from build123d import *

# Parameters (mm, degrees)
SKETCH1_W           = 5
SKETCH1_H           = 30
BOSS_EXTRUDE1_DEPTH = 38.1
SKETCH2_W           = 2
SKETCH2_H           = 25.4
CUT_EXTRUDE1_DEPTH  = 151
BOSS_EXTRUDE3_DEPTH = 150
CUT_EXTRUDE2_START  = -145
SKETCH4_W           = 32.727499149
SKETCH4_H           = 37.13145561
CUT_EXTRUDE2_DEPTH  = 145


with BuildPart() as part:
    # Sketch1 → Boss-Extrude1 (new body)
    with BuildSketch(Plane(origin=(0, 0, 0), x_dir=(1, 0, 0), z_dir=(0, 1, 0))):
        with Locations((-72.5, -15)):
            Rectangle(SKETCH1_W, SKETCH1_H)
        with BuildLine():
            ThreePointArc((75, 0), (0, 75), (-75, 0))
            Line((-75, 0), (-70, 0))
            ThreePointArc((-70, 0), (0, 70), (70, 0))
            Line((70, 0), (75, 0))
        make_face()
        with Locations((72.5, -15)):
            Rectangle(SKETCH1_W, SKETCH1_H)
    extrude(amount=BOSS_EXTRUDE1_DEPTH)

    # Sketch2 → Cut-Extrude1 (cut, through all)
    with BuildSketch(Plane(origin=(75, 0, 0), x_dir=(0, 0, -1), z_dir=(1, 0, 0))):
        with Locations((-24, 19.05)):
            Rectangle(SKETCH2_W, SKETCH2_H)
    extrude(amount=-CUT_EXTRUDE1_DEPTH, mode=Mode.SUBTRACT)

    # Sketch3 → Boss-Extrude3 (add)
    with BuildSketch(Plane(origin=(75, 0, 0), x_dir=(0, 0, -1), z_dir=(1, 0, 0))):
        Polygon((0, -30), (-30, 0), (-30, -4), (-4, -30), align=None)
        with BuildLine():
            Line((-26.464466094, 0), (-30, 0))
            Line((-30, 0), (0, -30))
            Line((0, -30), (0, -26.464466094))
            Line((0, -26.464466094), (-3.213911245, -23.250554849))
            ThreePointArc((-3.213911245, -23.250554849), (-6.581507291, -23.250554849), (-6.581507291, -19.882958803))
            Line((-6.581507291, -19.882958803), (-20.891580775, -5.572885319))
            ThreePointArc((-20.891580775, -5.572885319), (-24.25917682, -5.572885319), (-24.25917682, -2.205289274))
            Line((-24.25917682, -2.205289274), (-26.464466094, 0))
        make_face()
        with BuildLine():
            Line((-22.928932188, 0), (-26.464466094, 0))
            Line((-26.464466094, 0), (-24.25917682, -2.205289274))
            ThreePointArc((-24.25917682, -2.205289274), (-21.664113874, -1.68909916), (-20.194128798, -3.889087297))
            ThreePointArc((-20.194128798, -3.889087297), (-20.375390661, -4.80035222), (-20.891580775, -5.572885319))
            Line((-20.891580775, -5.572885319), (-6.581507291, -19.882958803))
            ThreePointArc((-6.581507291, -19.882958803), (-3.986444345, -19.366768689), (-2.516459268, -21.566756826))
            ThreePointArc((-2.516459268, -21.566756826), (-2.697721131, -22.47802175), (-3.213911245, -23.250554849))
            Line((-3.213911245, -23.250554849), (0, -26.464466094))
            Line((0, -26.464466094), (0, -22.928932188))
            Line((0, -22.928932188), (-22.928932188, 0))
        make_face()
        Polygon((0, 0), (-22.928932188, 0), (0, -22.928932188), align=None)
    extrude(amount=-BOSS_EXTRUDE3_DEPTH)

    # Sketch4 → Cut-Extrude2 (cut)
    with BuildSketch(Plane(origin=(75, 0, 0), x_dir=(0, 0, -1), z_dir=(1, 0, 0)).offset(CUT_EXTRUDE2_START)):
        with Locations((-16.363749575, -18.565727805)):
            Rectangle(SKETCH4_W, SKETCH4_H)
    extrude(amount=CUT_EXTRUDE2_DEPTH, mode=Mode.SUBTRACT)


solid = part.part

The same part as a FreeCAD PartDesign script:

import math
import FreeCAD as App
import Part
import Sketcher

doc = App.newDocument("Part")
body = doc.addObject("PartDesign::Body", "Body")

# Sketch on XZ plane
sketch1 = body.newObject("Sketcher::SketchObject", "Sketch")
sketch1.AttachmentSupport = (doc.getObject("XZ_Plane"), [""])
sketch1.MapMode = "FlatFace"
sketch1.addGeometry([
    Part.LineSegment(App.Vector(-75, 0, 0), App.Vector(-75, 30, 0)),  # 0
    Part.LineSegment(App.Vector(-75, 30, 0), App.Vector(-70, 30, 0)),  # 1
    Part.LineSegment(App.Vector(-70, 30, 0), App.Vector(-70, 0, 0)),  # 2
    Part.ArcOfCircle(Part.Circle(App.Vector(0, 0, 0), App.Vector(0, 0, 1), 70), math.radians(180), math.radians(360)),  # 3
    Part.LineSegment(App.Vector(70, 0, 0), App.Vector(70, 30, 0)),  # 4
    Part.LineSegment(App.Vector(70, 30, 0), App.Vector(75, 30, 0)),  # 5
    Part.LineSegment(App.Vector(75, 30, 0), App.Vector(75, 0, 0)),  # 6
    Part.ArcOfCircle(Part.Circle(App.Vector(0, 0, 0), App.Vector(0, 0, 1), 75), math.radians(180), math.radians(360)),  # 7
], False)
sketch1.addConstraint([
    Sketcher.Constraint("Coincident", 0, 2, 1, 1),
    Sketcher.Constraint("Coincident", 1, 2, 2, 1),
    Sketcher.Constraint("Tangent", 2, 2, 3, 1),
    Sketcher.Constraint("Tangent", 3, 2, 4, 1),
    Sketcher.Constraint("Coincident", 4, 2, 5, 1),
    Sketcher.Constraint("Coincident", 5, 2, 6, 1),
    Sketcher.Constraint("Tangent", 6, 2, 7, 2),
    Sketcher.Constraint("Tangent", 7, 1, 0, 1),
    Sketcher.Constraint("Vertical", 0),
    Sketcher.Constraint("Horizontal", 1),
    Sketcher.Constraint("Vertical", 2),
    Sketcher.Constraint("Vertical", 4),
    Sketcher.Constraint("Horizontal", 5),
    Sketcher.Constraint("Vertical", 6),
    Sketcher.Constraint("Coincident", 3, 3, -1, 1),
    Sketcher.Constraint("Coincident", 7, 3, -1, 1),
    Sketcher.Constraint("Horizontal", 1, 2, 4, 2),
    Sketcher.Constraint("Radius", 3, 70.0),
    Sketcher.Constraint("Radius", 7, 75.0),
    Sketcher.Constraint("DistanceY", 0, 1, 0, 2, 30.0),
])
pad1 = body.newObject("PartDesign::Pad", "Pad")
pad1.Profile = sketch1
pad1.Length = 38.1
pad1.Reversed = True

# Sketch on YZ plane
sketch2 = body.newObject("Sketcher::SketchObject", "Sketch001")
sketch2.AttachmentSupport = (doc.getObject("YZ_Plane"), [""])
sketch2.MapMode = "FlatFace"
sketch2.AttachmentOffset = App.Placement(App.Vector(0, 0, 75), App.Rotation())
sketch2.addGeometry([
    Part.LineSegment(App.Vector(31.75, 25, 0), App.Vector(6.35, 25, 0)),
    Part.LineSegment(App.Vector(6.35, 25, 0), App.Vector(6.35, 23, 0)),
    Part.LineSegment(App.Vector(6.35, 23, 0), App.Vector(31.75, 23, 0)),
    Part.LineSegment(App.Vector(31.75, 23, 0), App.Vector(31.75, 25, 0)),
], False)
sketch2.addConstraint([
    Sketcher.Constraint("Coincident", 0, 2, 1, 1),
    Sketcher.Constraint("Coincident", 1, 2, 2, 1),
    Sketcher.Constraint("Coincident", 2, 2, 3, 1),
    Sketcher.Constraint("Coincident", 3, 2, 0, 1),
    Sketcher.Constraint("Horizontal", 0),
    Sketcher.Constraint("Vertical", 1),
    Sketcher.Constraint("Horizontal", 2),
    Sketcher.Constraint("Vertical", 3),
    Sketcher.Constraint("DistanceY", 1, 2, 1, 1, 2.0),
    Sketcher.Constraint("DistanceX", 0, 2, 0, 1, 25.4),
    Sketcher.Constraint("DistanceY", -1, 1, 0, 2, 25.0),
    Sketcher.Constraint("DistanceX", -1, 1, 0, 2, 6.35),
])
pocket1 = body.newObject("PartDesign::Pocket", "Pocket")
pocket1.Profile = sketch2
pocket1.Type = "ThroughAll"

# Sketch on YZ plane
sketch3 = body.newObject("Sketcher::SketchObject", "Sketch002")
sketch3.AttachmentSupport = (doc.getObject("YZ_Plane"), [""])
sketch3.MapMode = "FlatFace"
sketch3.AttachmentOffset = App.Placement(App.Vector(0, 0, 75), App.Rotation())
sketch3.addGeometry([
    Part.LineSegment(App.Vector(0, 30, 0), App.Vector(-4, 30, 0)),  # 0
    Part.LineSegment(App.Vector(-4, 30, 0), App.Vector(-30, 4, 0)),  # 1
    Part.LineSegment(App.Vector(-30, 4, 0), App.Vector(-30, 0, 0)),  # 2
    Part.LineSegment(App.Vector(-30, 0, 0), App.Vector(0, 0, 0)),  # 3
    Part.LineSegment(App.Vector(0, 0, 0), App.Vector(0, 30, 0)),  # 4
    Part.ArcOfCircle(Part.Circle(App.Vector(-21.566757, 4.897709, 0), App.Vector(0, 0, 1), 2.38125), math.radians(45), math.radians(225)),  # 5
    Part.ArcOfCircle(Part.Circle(App.Vector(-21.566757, 4.897709, 0), App.Vector(0, 0, 1), 2.38125), math.radians(-90), math.radians(45)),  # 6
    Part.ArcOfCircle(Part.Circle(App.Vector(-21.566757, 4.897709, 0), App.Vector(0, 0, 1), 2.38125), math.radians(-135), math.radians(-90)),  # 7
    Part.ArcOfCircle(Part.Circle(App.Vector(-3.889087, 22.575379, 0), App.Vector(0, 0, 1), 2.38125), math.radians(45), math.radians(225)),  # 8
    Part.ArcOfCircle(Part.Circle(App.Vector(-3.889087, 22.575379, 0), App.Vector(0, 0, 1), 2.38125), math.radians(-90), math.radians(45)),  # 9
    Part.ArcOfCircle(Part.Circle(App.Vector(-3.889087, 22.575379, 0), App.Vector(0, 0, 1), 2.38125), math.radians(-135), math.radians(-90)),  # 10
], False)
sketch3.addConstraint([
    Sketcher.Constraint("Coincident", 0, 2, 1, 1),
    Sketcher.Constraint("Coincident", 1, 2, 2, 1),
    Sketcher.Constraint("Coincident", 2, 2, 3, 1),
    Sketcher.Constraint("Coincident", 3, 2, 4, 1),
    Sketcher.Constraint("Coincident", 4, 2, 0, 1),
    Sketcher.Constraint("Tangent", 5, 1, 6, 2),
    Sketcher.Constraint("Tangent", 6, 1, 7, 2),
    Sketcher.Constraint("Tangent", 7, 1, 5, 2),
    Sketcher.Constraint("Tangent", 8, 1, 9, 2),
    Sketcher.Constraint("Tangent", 9, 1, 10, 2),
    Sketcher.Constraint("Tangent", 10, 1, 8, 2),
    Sketcher.Constraint("Horizontal", 0),
    Sketcher.Constraint("Vertical", 2),
    Sketcher.Constraint("Horizontal", 3),
    Sketcher.Constraint("Vertical", 4),
    Sketcher.Constraint("Coincident", 3, 2, -1, 1),
    Sketcher.Constraint("Equal", 7, 8),
    Sketcher.Constraint("Vertical", 7, 3, 6, 1),
    Sketcher.Constraint("Vertical", 10, 3, 9, 1),
    Sketcher.Constraint("Equal", 0, 2),
    Sketcher.Constraint("Equal", 3, 4),
    Sketcher.Constraint("DistanceX", 0, 2, 0, 1, 4.0),
    Sketcher.Constraint("DistanceX", 3, 1, 3, 2, 30.0),
    Sketcher.Constraint("Radius", 5, 2.38125),
    Sketcher.Constraint("DistanceX", 5, 3, 5, 1, 1.683798),
    Sketcher.Constraint("DistanceX", 7, 1, 6, 1, 1.683798),
    Sketcher.Constraint("DistanceX", 8, 3, 8, 1, 1.683798),
    Sketcher.Constraint("DistanceX", 10, 1, 9, 1, 1.683798),
    Sketcher.Constraint("DistanceY", -1, 1, 5, 3, 4.897709),
    Sketcher.Constraint("DistanceY", -1, 1, 8, 3, 22.575379),
    Sketcher.Constraint("DistanceX", 5, 1, -1, 1, 19.882959),
    Sketcher.Constraint("DistanceX", 8, 1, -1, 1, 2.205289),
])
pad2 = body.newObject("PartDesign::Pad", "Pad001")
pad2.Profile = sketch3
pad2.Length = 150
pad2.Reversed = True

# Sketch on YZ plane
sketch4 = body.newObject("Sketcher::SketchObject", "Sketch003")
sketch4.AttachmentSupport = (doc.getObject("YZ_Plane"), [""])
sketch4.MapMode = "FlatFace"
sketch4.AttachmentOffset = App.Placement(App.Vector(0, 0, -70), App.Rotation())
sketch4.addGeometry([
    Part.LineSegment(App.Vector(0, 32.727499, 0), App.Vector(-37.131456, 32.727499, 0)),
    Part.LineSegment(App.Vector(-37.131456, 32.727499, 0), App.Vector(-37.131456, 0, 0)),
    Part.LineSegment(App.Vector(-37.131456, 0, 0), App.Vector(0, 0, 0)),
    Part.LineSegment(App.Vector(0, 0, 0), App.Vector(0, 32.727499, 0)),
], False)
sketch4.addConstraint([
    Sketcher.Constraint("Coincident", 0, 2, 1, 1),
    Sketcher.Constraint("Coincident", 1, 2, 2, 1),
    Sketcher.Constraint("Coincident", 2, 2, 3, 1),
    Sketcher.Constraint("Coincident", 3, 2, 0, 1),
    Sketcher.Constraint("Horizontal", 0),
    Sketcher.Constraint("Vertical", 1),
    Sketcher.Constraint("Horizontal", 2),
    Sketcher.Constraint("Vertical", 3),
    Sketcher.Constraint("Coincident", 2, 2, -1, 1),
    Sketcher.Constraint("DistanceY", 1, 2, 1, 1, 32.727499),
    Sketcher.Constraint("DistanceX", 0, 2, 0, 1, 37.131456),
])
pocket2 = body.newObject("PartDesign::Pocket", "Pocket001")
pocket2.Profile = sketch4
pocket2.Length = 145
pocket2.Reversed = True

doc.recompute()
